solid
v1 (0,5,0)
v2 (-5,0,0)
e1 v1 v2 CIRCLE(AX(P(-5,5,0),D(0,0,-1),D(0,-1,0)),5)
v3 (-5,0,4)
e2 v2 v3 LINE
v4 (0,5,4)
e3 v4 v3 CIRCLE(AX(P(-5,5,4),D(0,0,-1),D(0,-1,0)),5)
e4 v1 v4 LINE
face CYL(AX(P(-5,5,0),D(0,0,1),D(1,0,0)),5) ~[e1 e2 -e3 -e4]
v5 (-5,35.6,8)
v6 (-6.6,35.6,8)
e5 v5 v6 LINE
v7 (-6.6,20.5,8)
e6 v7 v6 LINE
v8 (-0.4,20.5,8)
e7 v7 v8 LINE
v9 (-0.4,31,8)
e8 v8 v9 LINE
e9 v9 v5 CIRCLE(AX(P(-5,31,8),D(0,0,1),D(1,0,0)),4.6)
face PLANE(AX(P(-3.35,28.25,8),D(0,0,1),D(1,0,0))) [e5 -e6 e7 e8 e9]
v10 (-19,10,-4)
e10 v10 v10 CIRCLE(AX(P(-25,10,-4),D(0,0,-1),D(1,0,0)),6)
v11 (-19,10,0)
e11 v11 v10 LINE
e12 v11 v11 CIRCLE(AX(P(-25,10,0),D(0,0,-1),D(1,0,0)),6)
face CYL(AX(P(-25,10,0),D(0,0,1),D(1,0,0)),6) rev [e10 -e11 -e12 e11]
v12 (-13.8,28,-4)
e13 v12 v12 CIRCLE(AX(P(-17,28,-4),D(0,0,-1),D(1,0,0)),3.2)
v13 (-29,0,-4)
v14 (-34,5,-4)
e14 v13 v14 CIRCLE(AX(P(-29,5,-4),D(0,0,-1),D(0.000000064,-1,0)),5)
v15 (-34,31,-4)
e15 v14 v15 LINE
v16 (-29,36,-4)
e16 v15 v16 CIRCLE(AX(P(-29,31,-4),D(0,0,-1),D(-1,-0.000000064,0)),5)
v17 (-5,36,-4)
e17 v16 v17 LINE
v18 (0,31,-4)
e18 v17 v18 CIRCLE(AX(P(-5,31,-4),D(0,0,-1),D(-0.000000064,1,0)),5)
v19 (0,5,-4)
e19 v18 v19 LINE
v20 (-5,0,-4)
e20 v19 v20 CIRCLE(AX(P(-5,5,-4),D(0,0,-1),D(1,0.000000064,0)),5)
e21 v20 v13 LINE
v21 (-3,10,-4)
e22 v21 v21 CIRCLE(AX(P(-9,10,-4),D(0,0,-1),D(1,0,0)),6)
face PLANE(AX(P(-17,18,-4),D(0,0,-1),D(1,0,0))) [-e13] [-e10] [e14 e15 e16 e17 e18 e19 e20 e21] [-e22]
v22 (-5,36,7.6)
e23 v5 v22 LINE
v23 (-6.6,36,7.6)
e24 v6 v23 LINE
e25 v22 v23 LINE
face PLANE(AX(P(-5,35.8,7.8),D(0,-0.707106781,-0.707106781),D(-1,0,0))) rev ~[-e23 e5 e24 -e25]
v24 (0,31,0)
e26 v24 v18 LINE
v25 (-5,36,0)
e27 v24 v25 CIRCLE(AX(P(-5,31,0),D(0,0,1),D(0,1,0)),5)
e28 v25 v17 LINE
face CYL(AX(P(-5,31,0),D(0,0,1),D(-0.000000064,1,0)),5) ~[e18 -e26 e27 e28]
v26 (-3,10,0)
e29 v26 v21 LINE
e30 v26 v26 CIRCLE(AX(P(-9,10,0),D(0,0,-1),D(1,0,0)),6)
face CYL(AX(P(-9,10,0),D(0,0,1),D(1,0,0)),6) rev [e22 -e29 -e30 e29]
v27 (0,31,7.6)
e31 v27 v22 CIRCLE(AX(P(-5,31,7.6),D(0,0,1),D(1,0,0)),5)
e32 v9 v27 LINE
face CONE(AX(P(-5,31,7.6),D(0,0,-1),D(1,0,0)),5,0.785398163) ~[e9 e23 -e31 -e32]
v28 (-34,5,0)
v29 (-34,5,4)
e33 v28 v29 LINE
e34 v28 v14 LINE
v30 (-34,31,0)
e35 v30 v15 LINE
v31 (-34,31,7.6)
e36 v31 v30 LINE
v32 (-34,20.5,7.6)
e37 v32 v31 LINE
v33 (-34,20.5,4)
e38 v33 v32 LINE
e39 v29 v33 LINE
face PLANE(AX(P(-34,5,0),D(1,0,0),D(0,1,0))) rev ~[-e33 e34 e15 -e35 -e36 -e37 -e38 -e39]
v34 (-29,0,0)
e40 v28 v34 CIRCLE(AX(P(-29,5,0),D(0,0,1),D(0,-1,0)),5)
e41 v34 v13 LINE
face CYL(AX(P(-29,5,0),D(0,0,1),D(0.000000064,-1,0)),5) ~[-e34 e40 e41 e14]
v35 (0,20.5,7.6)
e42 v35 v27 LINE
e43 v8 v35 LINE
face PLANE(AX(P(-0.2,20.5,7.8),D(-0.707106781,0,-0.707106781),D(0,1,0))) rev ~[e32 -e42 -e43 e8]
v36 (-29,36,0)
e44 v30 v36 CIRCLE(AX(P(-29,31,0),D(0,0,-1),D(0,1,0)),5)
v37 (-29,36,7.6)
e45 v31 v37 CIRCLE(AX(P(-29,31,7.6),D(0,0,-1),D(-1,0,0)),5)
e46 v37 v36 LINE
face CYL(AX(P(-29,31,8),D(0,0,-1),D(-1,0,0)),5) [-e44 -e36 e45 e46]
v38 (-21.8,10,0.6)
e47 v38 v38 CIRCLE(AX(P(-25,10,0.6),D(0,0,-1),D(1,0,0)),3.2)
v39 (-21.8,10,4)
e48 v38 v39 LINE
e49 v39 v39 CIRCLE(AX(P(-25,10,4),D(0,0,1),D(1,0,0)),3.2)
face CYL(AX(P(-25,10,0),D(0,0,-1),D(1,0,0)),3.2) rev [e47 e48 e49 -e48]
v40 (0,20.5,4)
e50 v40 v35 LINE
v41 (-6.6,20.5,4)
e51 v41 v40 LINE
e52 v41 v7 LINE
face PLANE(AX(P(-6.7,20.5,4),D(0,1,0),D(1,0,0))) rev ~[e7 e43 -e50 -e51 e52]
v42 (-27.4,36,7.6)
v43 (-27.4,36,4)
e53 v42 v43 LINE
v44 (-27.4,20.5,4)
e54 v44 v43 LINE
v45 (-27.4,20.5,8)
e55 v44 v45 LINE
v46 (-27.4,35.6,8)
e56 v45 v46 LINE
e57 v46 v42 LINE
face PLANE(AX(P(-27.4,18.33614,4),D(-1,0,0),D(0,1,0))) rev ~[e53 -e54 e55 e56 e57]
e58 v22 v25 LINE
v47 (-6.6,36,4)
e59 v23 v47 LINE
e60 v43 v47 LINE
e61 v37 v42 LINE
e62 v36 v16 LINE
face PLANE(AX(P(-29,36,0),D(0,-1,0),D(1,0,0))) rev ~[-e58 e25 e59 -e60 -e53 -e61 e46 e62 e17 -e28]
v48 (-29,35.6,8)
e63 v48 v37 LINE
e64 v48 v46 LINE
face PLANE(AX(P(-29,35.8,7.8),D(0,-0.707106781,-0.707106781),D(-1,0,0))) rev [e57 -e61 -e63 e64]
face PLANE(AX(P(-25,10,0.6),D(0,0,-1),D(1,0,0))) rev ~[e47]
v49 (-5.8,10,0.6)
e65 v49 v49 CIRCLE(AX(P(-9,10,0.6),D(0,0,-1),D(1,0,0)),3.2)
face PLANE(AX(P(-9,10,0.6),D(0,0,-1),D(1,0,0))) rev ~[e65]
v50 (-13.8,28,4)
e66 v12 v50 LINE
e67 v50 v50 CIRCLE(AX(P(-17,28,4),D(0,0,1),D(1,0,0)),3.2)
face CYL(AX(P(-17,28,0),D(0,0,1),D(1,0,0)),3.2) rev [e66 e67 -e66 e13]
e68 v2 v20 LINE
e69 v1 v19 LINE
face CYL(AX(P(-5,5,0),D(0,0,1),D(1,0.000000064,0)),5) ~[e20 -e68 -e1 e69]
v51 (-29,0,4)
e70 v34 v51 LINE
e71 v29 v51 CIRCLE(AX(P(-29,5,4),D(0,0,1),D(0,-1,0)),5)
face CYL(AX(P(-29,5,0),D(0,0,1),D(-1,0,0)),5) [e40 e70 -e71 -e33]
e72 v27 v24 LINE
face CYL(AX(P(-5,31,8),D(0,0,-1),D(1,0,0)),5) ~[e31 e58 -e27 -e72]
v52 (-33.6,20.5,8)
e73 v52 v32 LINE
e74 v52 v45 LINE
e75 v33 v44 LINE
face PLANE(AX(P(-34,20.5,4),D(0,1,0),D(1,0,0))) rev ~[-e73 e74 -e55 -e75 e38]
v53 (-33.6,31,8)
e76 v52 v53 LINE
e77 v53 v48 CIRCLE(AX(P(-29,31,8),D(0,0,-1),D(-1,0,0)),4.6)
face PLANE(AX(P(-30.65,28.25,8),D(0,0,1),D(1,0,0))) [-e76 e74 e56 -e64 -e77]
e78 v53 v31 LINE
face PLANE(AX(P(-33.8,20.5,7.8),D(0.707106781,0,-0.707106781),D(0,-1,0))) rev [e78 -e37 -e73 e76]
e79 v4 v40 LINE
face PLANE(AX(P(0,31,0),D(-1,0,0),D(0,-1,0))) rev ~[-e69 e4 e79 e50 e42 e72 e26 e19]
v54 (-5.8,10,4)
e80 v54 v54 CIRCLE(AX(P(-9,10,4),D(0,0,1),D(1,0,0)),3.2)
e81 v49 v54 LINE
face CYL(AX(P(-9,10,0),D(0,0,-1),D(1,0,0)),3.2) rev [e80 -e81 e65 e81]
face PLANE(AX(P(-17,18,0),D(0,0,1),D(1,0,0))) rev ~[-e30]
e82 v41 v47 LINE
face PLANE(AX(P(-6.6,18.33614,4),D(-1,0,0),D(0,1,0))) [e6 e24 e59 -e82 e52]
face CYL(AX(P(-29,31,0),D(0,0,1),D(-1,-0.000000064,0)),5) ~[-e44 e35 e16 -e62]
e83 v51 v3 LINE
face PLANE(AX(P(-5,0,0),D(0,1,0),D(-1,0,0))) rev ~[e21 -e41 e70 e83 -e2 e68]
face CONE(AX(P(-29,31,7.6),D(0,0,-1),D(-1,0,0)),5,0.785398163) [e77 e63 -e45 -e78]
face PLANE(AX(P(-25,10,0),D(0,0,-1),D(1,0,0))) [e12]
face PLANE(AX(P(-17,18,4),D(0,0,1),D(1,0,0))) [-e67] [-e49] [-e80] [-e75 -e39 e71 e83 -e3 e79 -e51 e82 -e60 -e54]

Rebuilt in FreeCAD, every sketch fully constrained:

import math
import FreeCAD as App
import Part
import Sketcher


def edges_at(feature, points):
    """Names of the edges that pass closest to the given points."""
    edges = feature.Shape.Edges
    near = lambda p: min(range(len(edges)), key=lambda i: edges[i].distToShape(Part.Vertex(*p))[0])
    return sorted({f"Edge{near(p) + 1}" for p in points})


def add_polygon(sketch, points):
    """Adds a closed chain of lines whose ends are joined by coincident constraints."""
    first, n = sketch.GeometryCount, len(points)
    for a, b in zip(points, points[1:] + points[:1]):
        sketch.addGeometry(Part.LineSegment(App.Vector(*a, 0), App.Vector(*b, 0)), False)
    for i in range(n):
        sketch.addConstraint(Sketcher.Constraint("Coincident", first + i, 2, first + (i + 1) % n, 1))

doc = App.newDocument("Part")
body = doc.addObject("PartDesign::Body", "Body")

# Sketch on XY plane
sketch1 = body.newObject("Sketcher::SketchObject", "Sketch")
sketch1.AttachmentSupport = (doc.getObject("XY_Plane"), [""])
sketch1.MapMode = "FlatFace"
add_polygon(sketch1, [(-34, 36), (-34, 0), (0, 0), (0, 36)])  # lines 0-3
sketch1.addGeometry(Part.Circle(App.Vector(-25, 10, 0), App.Vector(0, 0, 1), 3.2), False)  # 4
sketch1.addGeometry(Part.Circle(App.Vector(-9, 10, 0), App.Vector(0, 0, 1), 3.2), False)  # 5
sketch1.addGeometry(Part.Circle(App.Vector(-17, 28, 0), App.Vector(0, 0, 1), 3.2), False)  # 6
sketch1.addConstraint(Sketcher.Constraint("Vertical", 0))
sketch1.addConstraint(Sketcher.Constraint("Horizontal", 1))
sketch1.addConstraint(Sketcher.Constraint("Vertical", 2))
sketch1.addConstraint(Sketcher.Constraint("Horizontal", 3))
sketch1.addConstraint(Sketcher.Constraint("Coincident", 1, 2, -1, 1))
sketch1.addConstraint(Sketcher.Constraint("Equal", 4, 5))
sketch1.addConstraint(Sketcher.Constraint("Equal", 5, 6))
sketch1.addConstraint(Sketcher.Constraint("Horizontal", 4, 3, 5, 3))
sketch1.addConstraint(Sketcher.Constraint("Diameter", 4, 6.4))
sketch1.addConstraint(Sketcher.Constraint("DistanceX", 1, 1, 1, 2, 34.0))
sketch1.addConstraint(Sketcher.Constraint("DistanceY", 0, 2, 0, 1, 36.0))
sketch1.addConstraint(Sketcher.Constraint("DistanceX", 4, 3, -1, 1, 25.0))
sketch1.addConstraint(Sketcher.Constraint("DistanceY", -1, 1, 4, 3, 10.0))
sketch1.addConstraint(Sketcher.Constraint("DistanceX", 5, 3, -1, 1, 9.0))
sketch1.addConstraint(Sketcher.Constraint("DistanceX", 6, 3, -1, 1, 17.0))
sketch1.addConstraint(Sketcher.Constraint("DistanceY", -1, 1, 6, 3, 28.0))
pad1 = body.newObject("PartDesign::Pad", "Pad")
pad1.Profile = sketch1
pad1.Length = 4

# Sketch on XY plane
sketch2 = body.newObject("Sketcher::SketchObject", "Sketch001")
sketch2.AttachmentSupport = (doc.getObject("XY_Plane"), [""])
sketch2.MapMode = "FlatFace"
sketch2.AttachmentOffset = App.Placement(App.Vector(0, 0, 4), App.Rotation())
add_polygon(sketch2, [(-34, 36), (-34, 20), (-27, 20), (-27, 36)])  # lines 0-3
add_polygon(sketch2, [(-7, 36), (-7, 20), (0, 20), (0, 36)])  # lines 4-7
sketch2.addConstraint(Sketcher.Constraint("Vertical", 0))
sketch2.addConstraint(Sketcher.Constraint("Horizontal", 1))
sketch2.addConstraint(Sketcher.Constraint("Vertical", 2))
sketch2.addConstraint(Sketcher.Constraint("Horizontal", 3))
sketch2.addConstraint(Sketcher.Constraint("Vertical", 4))
sketch2.addConstraint(Sketcher.Constraint("Horizontal", 5))
sketch2.addConstraint(Sketcher.Constraint("Vertical", 6))
sketch2.addConstraint(Sketcher.Constraint("Horizontal", 7))
sketch2.addConstraint(Sketcher.Constraint("PointOnObject", 5, 2, -2))
sketch2.addConstraint(Sketcher.Constraint("Horizontal", 1, 2, 4, 2))
sketch2.addConstraint(Sketcher.Constraint("Horizontal", 3, 2, 6, 2))
sketch2.addConstraint(Sketcher.Constraint("Equal", 3, 5))
sketch2.addConstraint(Sketcher.Constraint("DistanceX", 1, 1, 1, 2, 6.7))
sketch2.addConstraint(Sketcher.Constraint("DistanceY", 0, 2, 0, 1, 15.5))
sketch2.addConstraint(Sketcher.Constraint("DistanceX", 0, 2, -1, 1, 34.0))
sketch2.addConstraint(Sketcher.Constraint("DistanceY", -1, 1, 2, 2, 36.0))
pad2 = body.newObject("PartDesign::Pad", "Pad001")
pad2.Profile = sketch2
pad2.Length = 4
doc.recompute()

fillet = body.newObject("PartDesign::Fillet", "Fillet")
fillet.Base = (pad2, edges_at(pad2, [
    (-34, 0, 2),
    (0, 0, 2),
    (0, 36, 4),
    (0, 36, 4),
    (-34, 36, 4),
    (-34, 36, 4),
]))
fillet.Radius = 5

# Sketch on XY plane
sketch3 = body.newObject("Sketcher::SketchObject", "Sketch002")
sketch3.AttachmentSupport = (doc.getObject("XY_Plane"), [""])
sketch3.MapMode = "FlatFace"
sketch3.addGeometry(Part.LineSegment(App.Vector(-5, 0, 0), App.Vector(-29, 0, 0)), False)
sketch3.addGeometry(Part.ArcOfCircle(Part.Circle(App.Vector(-29, 5, 0), App.Vector(0, 0, 1), 5), math.radians(180), math.radians(270)), False)
sketch3.addGeometry(Part.LineSegment(App.Vector(-34, 5, 0), App.Vector(-34, 31, 0)), False)
sketch3.addGeometry(Part.ArcOfCircle(Part.Circle(App.Vector(-29, 31, 0), App.Vector(0, 0, 1), 5), math.radians(90), math.radians(180)), False)
sketch3.addGeometry(Part.LineSegment(App.Vector(-29, 36, 0), App.Vector(-5, 36, 0)), False)
sketch3.addGeometry(Part.ArcOfCircle(Part.Circle(App.Vector(-5, 31, 0), App.Vector(0, 0, 1), 5), math.radians(0), math.radians(90)), False)
sketch3.addGeometry(Part.LineSegment(App.Vector(0, 31, 0), App.Vector(0, 5, 0)), False)
sketch3.addGeometry(Part.ArcOfCircle(Part.Circle(App.Vector(-5, 5, 0), App.Vector(0, 0, 1), 5), math.radians(-90), math.radians(0)), False)
sketch3.addGeometry(Part.Circle(App.Vector(-17, 28, 0), App.Vector(0, 0, 1), 3.2), False)
sketch3.addGeometry(Part.Circle(App.Vector(-25, 10, 0), App.Vector(0, 0, 1), 6), False)
sketch3.addGeometry(Part.Circle(App.Vector(-9, 10, 0), App.Vector(0, 0, 1), 6), False)
sketch3.addConstraint(Sketcher.Constraint("Tangent", 0, 2, 1, 2))
sketch3.addConstraint(Sketcher.Constraint("Tangent", 1, 1, 2, 1))
sketch3.addConstraint(Sketcher.Constraint("Tangent", 2, 2, 3, 2))
sketch3.addConstraint(Sketcher.Constraint("Tangent", 3, 1, 4, 1))
sketch3.addConstraint(Sketcher.Constraint("Tangent", 4, 2, 5, 2))
sketch3.addConstraint(Sketcher.Constraint("Tangent", 5, 1, 6, 1))
sketch3.addConstraint(Sketcher.Constraint("Tangent", 6, 2, 7, 2))
sketch3.addConstraint(Sketcher.Constraint("Tangent", 7, 1, 0, 1))
sketch3.addConstraint(Sketcher.Constraint("Horizontal", 0))
sketch3.addConstraint(Sketcher.Constraint("Vertical", 2))
sketch3.addConstraint(Sketcher.Constraint("Horizontal", 4))
sketch3.addConstraint(Sketcher.Constraint("Vertical", 6))
sketch3.addConstraint(Sketcher.Constraint("Equal", 1, 3))
sketch3.addConstraint(Sketcher.Constraint("Equal", 3, 5))
sketch3.addConstraint(Sketcher.Constraint("Equal", 5, 7))
sketch3.addConstraint(Sketcher.Constraint("Equal", 9, 10))
sketch3.addConstraint(Sketcher.Constraint("PointOnObject", 0, 2, -1))
sketch3.addConstraint(Sketcher.Constraint("PointOnObject", 5, 1, -2))
sketch3.addConstraint(Sketcher.Constraint("Horizontal", 9, 3, 10, 3))
sketch3.addConstraint(Sketcher.Constraint("Diameter", 9, 12.0))
sketch3.addConstraint(Sketcher.Constraint("Radius", 1, 5.0))
sketch3.addConstraint(Sketcher.Constraint("Diameter", 8, 6.4))
sketch3.addConstraint(Sketcher.Constraint("DistanceX", 0, 2, 0, 1, 24.0))
sketch3.addConstraint(Sketcher.Constraint("DistanceY", 2, 1, 2, 2, 26.0))
sketch3.addConstraint(Sketcher.Constraint("DistanceX", 8, 3, -1, 1, 17.0))
sketch3.addConstraint(Sketcher.Constraint("DistanceY", -1, 1, 8, 3, 28.0))
sketch3.addConstraint(Sketcher.Constraint("DistanceX", 9, 3, -1, 1, 25.0))
sketch3.addConstraint(Sketcher.Constraint("DistanceY", -1, 1, 9, 3, 10.0))
sketch3.addConstraint(Sketcher.Constraint("DistanceX", 10, 3, -1, 1, 9.0))
pad3 = body.newObject("PartDesign::Pad", "Pad002")
pad3.Profile = sketch3
pad3.Length = 4
pad3.Reversed = True

# Sketch on XY plane
sketch4 = body.newObject("Sketcher::SketchObject", "Sketch003")
sketch4.AttachmentSupport = (doc.getObject("XY_Plane"), [""])
sketch4.MapMode = "FlatFace"
sketch4.addGeometry(Part.Circle(App.Vector(-25, 10, 0), App.Vector(0, 0, 1), 3.2), False)
sketch4.addGeometry(Part.Circle(App.Vector(-9, 10, 0), App.Vector(0, 0, 1), 3.2), False)
sketch4.addConstraint(Sketcher.Constraint("Equal", 0, 1))
sketch4.addConstraint(Sketcher.Constraint("Horizontal", 0, 3, 1, 3))
sketch4.addConstraint(Sketcher.Constraint("Diameter", 0, 6.4))
sketch4.addConstraint(Sketcher.Constraint("DistanceX", 0, 3, -1, 1, 25.0))
sketch4.addConstraint(Sketcher.Constraint("DistanceY", -1, 1, 0, 3, 10.0))
sketch4.addConstraint(Sketcher.Constraint("DistanceX", 1, 3, -1, 1, 9.0))
pad4 = body.newObject("PartDesign::Pad", "Pad003")
pad4.Profile = sketch4
pad4.Length = 0.6

# Sketch on XY plane
sketch5 = body.newObject("Sketcher::SketchObject", "Sketch004")
sketch5.AttachmentSupport = (doc.getObject("XY_Plane"), [""])
sketch5.MapMode = "FlatFace"
sketch5.AttachmentOffset = App.Placement(App.Vector(0, 0, 4), App.Rotation())
add_polygon(sketch5, [(-27, 38), (-27, 18), (-7, 18), (-7, 38)])  # lines 0-3
sketch5.addConstraint(Sketcher.Constraint("Vertical", 0))
sketch5.addConstraint(Sketcher.Constraint("Horizontal", 1))
sketch5.addConstraint(Sketcher.Constraint("Vertical", 2))
sketch5.addConstraint(Sketcher.Constraint("Horizontal", 3))
sketch5.addConstraint(Sketcher.Constraint("DistanceX", 1, 1, 1, 2, 20.8))
sketch5.addConstraint(Sketcher.Constraint("DistanceX", 0, 2, -1, 1, 27.4))
sketch5.addConstraint(Sketcher.Constraint("DistanceY", 0, 2, 0, 1, 19.619243))
sketch5.addConstraint(Sketcher.Constraint("DistanceY", -1, 1, 0, 2, 18.33614))
pocket1 = body.newObject("PartDesign::Pocket", "Pocket")
pocket1.Profile = sketch5
pocket1.Length = 4
pocket1.Reversed = True
doc.recompute()

chamfer = body.newObject("PartDesign::Chamfer", "Chamfer")
chamfer.Base = (pocket1, edges_at(pocket1, [
    (0, 25.75, 8),
    (-1.464, 34.536, 8),
    (-5.8, 36, 8),
    (-28.2, 36, 8),
    (-32.536, 34.536, 8),
    (-34, 25.75, 8),
]))
chamfer.Size = 0.4

doc.recompute()
